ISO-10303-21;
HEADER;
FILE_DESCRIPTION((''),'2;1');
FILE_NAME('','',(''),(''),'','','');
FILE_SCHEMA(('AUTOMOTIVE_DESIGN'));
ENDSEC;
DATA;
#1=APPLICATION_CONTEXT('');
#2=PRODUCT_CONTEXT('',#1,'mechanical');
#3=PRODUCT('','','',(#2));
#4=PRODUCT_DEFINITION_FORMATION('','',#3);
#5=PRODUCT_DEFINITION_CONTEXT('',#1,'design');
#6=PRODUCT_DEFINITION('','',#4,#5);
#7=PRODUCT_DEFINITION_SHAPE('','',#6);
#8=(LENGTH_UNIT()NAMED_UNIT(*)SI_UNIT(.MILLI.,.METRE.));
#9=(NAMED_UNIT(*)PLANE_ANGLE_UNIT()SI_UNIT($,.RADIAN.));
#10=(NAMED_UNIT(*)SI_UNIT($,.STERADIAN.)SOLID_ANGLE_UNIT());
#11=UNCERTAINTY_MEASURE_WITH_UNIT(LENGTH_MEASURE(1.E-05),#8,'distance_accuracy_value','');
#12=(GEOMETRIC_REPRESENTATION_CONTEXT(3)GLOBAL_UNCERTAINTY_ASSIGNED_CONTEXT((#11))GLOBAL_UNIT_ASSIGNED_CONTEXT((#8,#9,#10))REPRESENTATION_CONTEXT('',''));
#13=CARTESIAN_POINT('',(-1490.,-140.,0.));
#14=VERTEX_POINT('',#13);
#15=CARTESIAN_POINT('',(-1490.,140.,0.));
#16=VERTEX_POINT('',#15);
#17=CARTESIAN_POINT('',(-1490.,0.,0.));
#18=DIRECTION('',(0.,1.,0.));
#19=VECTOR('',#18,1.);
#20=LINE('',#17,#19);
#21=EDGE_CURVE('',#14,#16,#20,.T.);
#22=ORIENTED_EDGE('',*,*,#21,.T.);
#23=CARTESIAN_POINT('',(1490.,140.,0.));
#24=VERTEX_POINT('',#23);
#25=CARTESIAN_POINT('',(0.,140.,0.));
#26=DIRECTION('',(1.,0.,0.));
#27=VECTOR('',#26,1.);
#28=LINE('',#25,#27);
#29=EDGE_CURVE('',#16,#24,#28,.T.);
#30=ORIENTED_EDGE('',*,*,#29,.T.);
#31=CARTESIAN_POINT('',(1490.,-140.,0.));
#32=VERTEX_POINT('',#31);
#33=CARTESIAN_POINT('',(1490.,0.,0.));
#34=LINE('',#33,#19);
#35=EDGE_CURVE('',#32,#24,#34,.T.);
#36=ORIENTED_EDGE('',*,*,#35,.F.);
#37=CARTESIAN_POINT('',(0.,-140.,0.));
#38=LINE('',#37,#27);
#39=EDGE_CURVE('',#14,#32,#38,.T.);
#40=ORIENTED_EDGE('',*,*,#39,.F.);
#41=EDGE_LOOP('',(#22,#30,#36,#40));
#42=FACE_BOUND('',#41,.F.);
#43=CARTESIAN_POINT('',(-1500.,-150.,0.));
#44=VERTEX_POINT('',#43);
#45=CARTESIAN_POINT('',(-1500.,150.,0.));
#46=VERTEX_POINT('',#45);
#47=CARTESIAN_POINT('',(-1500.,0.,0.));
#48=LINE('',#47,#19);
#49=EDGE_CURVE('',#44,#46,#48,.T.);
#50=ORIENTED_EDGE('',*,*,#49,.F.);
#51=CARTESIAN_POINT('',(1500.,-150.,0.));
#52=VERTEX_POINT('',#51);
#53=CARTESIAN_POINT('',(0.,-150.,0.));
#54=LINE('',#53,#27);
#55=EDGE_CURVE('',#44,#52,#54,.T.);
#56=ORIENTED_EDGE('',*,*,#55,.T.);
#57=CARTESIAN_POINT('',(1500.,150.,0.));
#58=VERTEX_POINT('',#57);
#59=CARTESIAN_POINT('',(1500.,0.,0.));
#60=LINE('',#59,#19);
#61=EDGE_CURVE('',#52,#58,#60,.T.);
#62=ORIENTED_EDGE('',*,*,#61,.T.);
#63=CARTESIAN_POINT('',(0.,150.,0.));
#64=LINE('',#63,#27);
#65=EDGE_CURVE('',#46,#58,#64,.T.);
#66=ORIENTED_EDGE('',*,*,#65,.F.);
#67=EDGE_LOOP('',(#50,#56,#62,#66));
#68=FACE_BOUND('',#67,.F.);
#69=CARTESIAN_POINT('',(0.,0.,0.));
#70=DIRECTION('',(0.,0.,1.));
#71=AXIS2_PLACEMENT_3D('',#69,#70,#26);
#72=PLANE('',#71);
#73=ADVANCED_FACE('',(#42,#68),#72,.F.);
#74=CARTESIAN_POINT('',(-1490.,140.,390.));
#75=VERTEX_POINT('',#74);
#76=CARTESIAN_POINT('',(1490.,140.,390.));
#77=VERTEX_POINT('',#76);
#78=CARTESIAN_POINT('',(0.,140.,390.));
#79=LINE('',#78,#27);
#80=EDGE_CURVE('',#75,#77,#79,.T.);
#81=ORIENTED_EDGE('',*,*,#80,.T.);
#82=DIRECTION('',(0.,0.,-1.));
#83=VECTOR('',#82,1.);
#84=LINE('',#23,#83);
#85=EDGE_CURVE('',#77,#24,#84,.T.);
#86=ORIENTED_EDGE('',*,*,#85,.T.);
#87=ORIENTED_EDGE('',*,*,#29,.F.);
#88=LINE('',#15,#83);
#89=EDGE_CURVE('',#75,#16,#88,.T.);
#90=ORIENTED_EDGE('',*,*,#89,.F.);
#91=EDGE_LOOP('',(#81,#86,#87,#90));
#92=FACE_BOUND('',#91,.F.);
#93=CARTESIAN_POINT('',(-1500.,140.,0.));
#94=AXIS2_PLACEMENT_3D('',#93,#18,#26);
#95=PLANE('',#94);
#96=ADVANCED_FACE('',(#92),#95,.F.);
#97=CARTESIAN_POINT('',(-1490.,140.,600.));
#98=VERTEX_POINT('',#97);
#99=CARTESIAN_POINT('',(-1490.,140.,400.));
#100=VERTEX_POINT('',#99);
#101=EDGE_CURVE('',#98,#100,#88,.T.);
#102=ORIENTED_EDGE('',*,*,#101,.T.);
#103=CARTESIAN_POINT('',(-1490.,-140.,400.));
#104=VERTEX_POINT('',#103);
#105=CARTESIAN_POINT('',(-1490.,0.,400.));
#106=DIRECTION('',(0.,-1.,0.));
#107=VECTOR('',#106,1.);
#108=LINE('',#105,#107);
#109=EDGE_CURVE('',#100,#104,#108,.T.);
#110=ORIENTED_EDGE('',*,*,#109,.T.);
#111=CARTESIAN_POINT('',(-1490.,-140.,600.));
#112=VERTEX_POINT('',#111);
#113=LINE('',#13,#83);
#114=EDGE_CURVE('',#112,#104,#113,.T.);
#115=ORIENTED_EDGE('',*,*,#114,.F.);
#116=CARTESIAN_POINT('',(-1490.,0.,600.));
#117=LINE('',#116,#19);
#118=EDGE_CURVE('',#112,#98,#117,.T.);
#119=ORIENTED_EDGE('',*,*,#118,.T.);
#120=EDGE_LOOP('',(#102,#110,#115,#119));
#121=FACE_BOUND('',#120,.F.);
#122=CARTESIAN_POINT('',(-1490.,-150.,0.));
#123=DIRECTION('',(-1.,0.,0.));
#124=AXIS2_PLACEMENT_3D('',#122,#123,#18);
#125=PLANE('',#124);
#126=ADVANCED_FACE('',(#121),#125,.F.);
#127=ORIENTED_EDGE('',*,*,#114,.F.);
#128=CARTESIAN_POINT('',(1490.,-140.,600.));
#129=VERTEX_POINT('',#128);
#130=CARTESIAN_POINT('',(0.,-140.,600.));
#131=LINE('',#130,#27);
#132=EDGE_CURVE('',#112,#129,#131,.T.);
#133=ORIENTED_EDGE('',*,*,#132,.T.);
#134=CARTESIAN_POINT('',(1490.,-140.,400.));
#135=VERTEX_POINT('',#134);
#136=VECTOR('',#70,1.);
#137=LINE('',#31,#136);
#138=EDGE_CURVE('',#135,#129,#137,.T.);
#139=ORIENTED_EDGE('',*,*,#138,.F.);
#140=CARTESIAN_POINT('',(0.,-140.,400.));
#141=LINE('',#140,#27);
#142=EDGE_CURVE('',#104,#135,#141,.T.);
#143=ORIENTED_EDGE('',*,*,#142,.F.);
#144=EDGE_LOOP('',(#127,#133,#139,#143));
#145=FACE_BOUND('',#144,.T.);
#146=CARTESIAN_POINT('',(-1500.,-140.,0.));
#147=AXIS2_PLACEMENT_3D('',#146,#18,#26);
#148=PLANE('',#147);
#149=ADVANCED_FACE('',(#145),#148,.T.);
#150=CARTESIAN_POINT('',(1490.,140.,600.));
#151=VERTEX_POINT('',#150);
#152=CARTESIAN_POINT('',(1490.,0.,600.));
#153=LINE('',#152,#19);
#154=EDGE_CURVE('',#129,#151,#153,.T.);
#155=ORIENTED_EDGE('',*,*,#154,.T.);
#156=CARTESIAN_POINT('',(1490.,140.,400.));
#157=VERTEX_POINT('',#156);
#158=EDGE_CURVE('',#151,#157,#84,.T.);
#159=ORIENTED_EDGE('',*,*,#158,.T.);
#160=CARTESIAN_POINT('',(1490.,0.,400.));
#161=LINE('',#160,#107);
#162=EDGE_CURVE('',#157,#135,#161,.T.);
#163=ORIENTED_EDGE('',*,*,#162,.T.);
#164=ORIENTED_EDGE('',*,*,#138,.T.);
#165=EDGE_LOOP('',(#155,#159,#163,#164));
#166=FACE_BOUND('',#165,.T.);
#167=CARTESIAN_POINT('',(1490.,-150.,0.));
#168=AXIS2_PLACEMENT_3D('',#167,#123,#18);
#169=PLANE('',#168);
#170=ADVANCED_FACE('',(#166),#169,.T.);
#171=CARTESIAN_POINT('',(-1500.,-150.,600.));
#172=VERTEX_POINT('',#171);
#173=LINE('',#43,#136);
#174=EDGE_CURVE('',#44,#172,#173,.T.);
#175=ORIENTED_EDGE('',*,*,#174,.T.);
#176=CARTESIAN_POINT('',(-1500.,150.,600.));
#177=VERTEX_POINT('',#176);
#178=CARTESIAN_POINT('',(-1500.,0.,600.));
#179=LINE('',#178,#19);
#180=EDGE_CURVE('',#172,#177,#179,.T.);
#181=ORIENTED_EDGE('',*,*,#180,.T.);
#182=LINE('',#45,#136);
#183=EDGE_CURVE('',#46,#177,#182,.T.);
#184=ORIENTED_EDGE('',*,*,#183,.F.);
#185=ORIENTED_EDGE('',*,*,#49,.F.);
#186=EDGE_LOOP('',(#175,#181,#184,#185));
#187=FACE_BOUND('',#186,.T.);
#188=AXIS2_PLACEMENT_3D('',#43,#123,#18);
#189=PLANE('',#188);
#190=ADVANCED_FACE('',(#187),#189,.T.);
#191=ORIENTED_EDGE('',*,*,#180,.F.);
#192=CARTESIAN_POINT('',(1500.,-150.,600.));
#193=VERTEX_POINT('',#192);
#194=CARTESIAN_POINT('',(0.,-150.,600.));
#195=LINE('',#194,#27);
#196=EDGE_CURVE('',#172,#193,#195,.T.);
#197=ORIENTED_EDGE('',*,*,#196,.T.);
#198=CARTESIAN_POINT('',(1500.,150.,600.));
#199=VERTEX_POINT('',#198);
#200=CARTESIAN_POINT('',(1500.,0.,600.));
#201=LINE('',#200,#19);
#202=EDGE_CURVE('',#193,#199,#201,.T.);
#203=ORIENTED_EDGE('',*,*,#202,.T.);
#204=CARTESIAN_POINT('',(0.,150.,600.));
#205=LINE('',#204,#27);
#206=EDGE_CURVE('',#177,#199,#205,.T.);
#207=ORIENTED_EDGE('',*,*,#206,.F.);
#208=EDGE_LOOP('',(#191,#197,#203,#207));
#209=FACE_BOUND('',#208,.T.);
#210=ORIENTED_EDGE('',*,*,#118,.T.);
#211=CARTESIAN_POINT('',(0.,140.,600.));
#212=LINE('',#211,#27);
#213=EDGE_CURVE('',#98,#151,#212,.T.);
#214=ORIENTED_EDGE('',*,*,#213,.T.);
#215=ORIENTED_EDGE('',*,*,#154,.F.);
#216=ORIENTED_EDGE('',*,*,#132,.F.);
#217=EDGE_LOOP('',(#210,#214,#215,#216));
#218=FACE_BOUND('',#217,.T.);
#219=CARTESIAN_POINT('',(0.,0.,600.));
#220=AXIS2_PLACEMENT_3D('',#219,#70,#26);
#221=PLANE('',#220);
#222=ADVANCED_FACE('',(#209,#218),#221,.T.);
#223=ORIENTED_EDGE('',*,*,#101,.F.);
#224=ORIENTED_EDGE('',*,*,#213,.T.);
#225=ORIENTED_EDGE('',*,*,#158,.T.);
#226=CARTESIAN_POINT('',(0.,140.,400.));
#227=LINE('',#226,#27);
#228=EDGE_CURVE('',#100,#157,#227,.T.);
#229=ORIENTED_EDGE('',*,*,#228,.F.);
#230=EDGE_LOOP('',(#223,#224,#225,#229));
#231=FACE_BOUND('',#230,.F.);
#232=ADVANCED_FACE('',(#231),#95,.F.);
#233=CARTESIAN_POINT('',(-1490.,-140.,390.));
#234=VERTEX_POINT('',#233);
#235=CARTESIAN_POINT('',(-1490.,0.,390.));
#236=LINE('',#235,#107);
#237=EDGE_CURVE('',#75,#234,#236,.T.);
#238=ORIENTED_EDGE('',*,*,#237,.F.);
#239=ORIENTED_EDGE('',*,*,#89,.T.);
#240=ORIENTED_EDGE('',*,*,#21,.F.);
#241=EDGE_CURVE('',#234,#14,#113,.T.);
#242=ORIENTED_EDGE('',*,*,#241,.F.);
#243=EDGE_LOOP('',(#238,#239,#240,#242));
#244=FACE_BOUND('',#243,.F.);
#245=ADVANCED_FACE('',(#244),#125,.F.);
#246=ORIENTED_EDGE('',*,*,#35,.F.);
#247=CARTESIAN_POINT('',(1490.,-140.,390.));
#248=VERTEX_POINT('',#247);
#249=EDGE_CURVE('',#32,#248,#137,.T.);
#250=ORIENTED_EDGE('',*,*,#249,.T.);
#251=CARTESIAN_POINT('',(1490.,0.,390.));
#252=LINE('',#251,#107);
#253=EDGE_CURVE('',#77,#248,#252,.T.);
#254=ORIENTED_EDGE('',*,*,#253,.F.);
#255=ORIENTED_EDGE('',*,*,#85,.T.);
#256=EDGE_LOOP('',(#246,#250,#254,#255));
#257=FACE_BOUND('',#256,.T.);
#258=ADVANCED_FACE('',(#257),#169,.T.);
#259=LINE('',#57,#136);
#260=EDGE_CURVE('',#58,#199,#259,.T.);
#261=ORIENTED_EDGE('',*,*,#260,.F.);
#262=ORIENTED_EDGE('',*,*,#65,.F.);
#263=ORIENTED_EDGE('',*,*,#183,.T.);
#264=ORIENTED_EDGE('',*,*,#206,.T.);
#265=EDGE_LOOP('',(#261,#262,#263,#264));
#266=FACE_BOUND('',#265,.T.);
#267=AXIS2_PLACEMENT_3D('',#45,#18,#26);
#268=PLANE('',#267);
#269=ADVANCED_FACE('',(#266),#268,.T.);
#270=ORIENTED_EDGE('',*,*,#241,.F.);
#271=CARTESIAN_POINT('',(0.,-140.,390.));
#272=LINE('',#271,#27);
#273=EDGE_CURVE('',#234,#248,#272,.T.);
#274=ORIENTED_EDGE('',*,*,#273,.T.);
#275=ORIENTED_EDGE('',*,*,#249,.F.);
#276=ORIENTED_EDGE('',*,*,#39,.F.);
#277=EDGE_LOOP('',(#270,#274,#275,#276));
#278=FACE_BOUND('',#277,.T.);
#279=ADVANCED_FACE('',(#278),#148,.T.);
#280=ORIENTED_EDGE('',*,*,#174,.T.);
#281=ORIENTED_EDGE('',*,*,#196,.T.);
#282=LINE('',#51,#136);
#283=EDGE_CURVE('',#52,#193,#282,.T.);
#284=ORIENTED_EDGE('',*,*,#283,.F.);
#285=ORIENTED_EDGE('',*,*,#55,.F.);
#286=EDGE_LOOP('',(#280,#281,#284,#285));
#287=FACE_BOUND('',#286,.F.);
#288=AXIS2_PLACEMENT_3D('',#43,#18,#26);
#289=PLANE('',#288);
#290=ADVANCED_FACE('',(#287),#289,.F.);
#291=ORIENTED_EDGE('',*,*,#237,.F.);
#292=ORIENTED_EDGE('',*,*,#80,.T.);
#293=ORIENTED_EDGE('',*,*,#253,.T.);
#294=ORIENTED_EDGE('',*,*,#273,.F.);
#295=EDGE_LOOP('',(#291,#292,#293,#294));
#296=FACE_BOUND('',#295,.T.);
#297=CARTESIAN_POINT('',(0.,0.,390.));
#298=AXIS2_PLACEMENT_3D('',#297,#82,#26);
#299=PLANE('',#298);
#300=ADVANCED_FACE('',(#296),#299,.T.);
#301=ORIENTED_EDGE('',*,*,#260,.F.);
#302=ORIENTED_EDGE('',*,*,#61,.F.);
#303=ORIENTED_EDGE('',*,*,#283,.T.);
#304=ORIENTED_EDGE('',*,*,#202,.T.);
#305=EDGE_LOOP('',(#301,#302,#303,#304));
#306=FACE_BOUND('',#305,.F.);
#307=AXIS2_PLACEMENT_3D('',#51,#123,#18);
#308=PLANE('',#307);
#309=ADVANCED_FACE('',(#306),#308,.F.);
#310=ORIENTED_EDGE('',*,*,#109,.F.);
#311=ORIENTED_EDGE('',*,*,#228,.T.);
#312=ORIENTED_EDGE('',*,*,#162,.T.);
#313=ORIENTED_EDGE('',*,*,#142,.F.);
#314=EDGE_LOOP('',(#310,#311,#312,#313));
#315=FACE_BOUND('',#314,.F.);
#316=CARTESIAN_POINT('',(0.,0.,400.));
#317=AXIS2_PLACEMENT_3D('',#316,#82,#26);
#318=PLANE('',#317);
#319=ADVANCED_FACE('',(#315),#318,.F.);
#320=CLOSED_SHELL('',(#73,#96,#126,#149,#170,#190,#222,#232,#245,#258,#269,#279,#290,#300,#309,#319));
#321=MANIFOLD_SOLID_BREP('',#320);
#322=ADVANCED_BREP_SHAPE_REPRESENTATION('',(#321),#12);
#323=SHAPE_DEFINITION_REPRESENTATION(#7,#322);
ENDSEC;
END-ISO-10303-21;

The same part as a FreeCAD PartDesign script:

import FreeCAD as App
import Part
import Sketcher
Q = App.Units.Quantity


def faces_at(feature, points):
    """Names of the faces that lie closest to the given points."""
    faces = feature.Shape.Faces
    near = lambda p: min(range(len(faces)), key=lambda i: faces[i].distToShape(Part.Vertex(*p))[0])
    return sorted({f"Face{near(p) + 1}" for p in points})

doc = App.newDocument("Part")
body = doc.addObject("PartDesign::Body", "Body")

sketch1 = body.newObject("Sketcher::SketchObject", "Sketch")
sketch1.AttachmentSupport = (doc.getObject("XY_Plane"), [""])
sketch1.MapMode = "FlatFace"
sketch1.addGeometry(Part.LineSegment(App.Vector(-1500, 150, 0), App.Vector(-1500, -150, 0)), False)
sketch1.addGeometry(Part.LineSegment(App.Vector(-1500, -150, 0), App.Vector(1500, -150, 0)), False)
sketch1.addGeometry(Part.LineSegment(App.Vector(1500, -150, 0), App.Vector(1500, 150, 0)), False)
sketch1.addGeometry(Part.LineSegment(App.Vector(1500, 150, 0), App.Vector(-1500, 150, 0)), False)
sketch1.addConstraint(Sketcher.Constraint("Coincident", 0, 2, 1, 1))
sketch1.addConstraint(Sketcher.Constraint("Coincident", 1, 2, 2, 1))
sketch1.addConstraint(Sketcher.Constraint("Coincident", 2, 2, 3, 1))
sketch1.addConstraint(Sketcher.Constraint("Coincident", 3, 2, 0, 1))
sketch1.addConstraint(Sketcher.Constraint("Vertical", 0))
sketch1.addConstraint(Sketcher.Constraint("Horizontal", 1))
sketch1.addConstraint(Sketcher.Constraint("Vertical", 2))
sketch1.addConstraint(Sketcher.Constraint("Horizontal", 3))
sketch1.addConstraint(Sketcher.Constraint("Symmetric", 0, 2, 2, 2, -1, 1))
sketch1.addConstraint(Sketcher.Constraint("DistanceX", 1, 1, 1, 2, Q("3000 mm")))
sketch1.addConstraint(Sketcher.Constraint("DistanceY", 0, 2, 0, 1, Q("300 mm")))
pad1 = body.newObject("PartDesign::Pad", "Pad")
pad1.Profile = sketch1
pad1.Length = 600
doc.recompute()

thickness = body.newObject("PartDesign::Thickness", "Thickness")
thickness.Base = (pad1, faces_at(pad1, [(0, 0, 600), (0, 0, 0)]))
thickness.Value = 10
thickness.Reversed = True
thickness.Join = "Arc"

sketch2 = body.newObject("Sketcher::SketchObject", "Sketch001")
sketch2.AttachmentSupport = (doc.getObject("XY_Plane"), [""])
sketch2.MapMode = "FlatFace"
sketch2.AttachmentOffset = App.Placement(App.Vector(0, 0, 400), App.Rotation())
sketch2.addGeometry(Part.LineSegment(App.Vector(-1490, -140, 0), App.Vector(-1490, 140, 0)), False)
sketch2.addGeometry(Part.LineSegment(App.Vector(-1490, 140, 0), App.Vector(1490, 140, 0)), False)
sketch2.addGeometry(Part.LineSegment(App.Vector(1490, 140, 0), App.Vector(1490, -140, 0)), False)
sketch2.addGeometry(Part.LineSegment(App.Vector(1490, -140, 0), App.Vector(-1490, -140, 0)), False)
sketch2.addConstraint(Sketcher.Constraint("Coincident", 0, 2, 1, 1))
sketch2.addConstraint(Sketcher.Constraint("Coincident", 1, 2, 2, 1))
sketch2.addConstraint(Sketcher.Constraint("Coincident", 2, 2, 3, 1))
sketch2.addConstraint(Sketcher.Constraint("Coincident", 3, 2, 0, 1))
sketch2.addConstraint(Sketcher.Constraint("Vertical", 0))
sketch2.addConstraint(Sketcher.Constraint("Horizontal", 1))
sketch2.addConstraint(Sketcher.Constraint("Vertical", 2))
sketch2.addConstraint(Sketcher.Constraint("Horizontal", 3))
sketch2.addConstraint(Sketcher.Constraint("Symmetric", 0, 2, 2, 2, -1, 1))
sketch2.addConstraint(Sketcher.Constraint("DistanceX", 1, 1, 1, 2, Q("2980 mm")))
sketch2.addConstraint(Sketcher.Constraint("DistanceY", 0, 1, 0, 2, Q("280 mm")))
pad2 = body.newObject("PartDesign::Pad", "Pad001")
pad2.Profile = sketch2
pad2.Length = 10
pad2.Reversed = True

doc.recompute()
